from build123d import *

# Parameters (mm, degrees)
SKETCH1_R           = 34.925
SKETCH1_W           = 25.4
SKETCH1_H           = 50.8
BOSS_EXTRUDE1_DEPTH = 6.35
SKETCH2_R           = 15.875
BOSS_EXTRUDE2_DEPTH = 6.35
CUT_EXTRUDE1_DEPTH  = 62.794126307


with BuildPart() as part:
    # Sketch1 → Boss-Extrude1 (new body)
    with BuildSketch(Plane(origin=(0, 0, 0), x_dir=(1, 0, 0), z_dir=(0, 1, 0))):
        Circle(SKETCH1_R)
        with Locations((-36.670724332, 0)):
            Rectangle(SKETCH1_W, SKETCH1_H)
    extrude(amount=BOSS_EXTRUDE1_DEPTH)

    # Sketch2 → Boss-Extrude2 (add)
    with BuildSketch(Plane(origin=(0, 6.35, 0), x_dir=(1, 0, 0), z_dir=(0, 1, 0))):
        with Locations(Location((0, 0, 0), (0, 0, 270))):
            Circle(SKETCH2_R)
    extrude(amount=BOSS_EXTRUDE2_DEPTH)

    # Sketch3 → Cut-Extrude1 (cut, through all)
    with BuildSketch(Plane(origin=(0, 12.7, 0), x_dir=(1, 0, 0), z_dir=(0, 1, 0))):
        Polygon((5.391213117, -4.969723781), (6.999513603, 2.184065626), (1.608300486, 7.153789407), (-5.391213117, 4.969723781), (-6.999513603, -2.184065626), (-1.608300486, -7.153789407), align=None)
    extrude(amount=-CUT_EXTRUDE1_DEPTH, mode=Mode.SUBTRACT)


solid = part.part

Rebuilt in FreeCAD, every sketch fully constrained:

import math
import FreeCAD as App
import Part
import Sketcher

V = App.Vector
Q = App.Units.Quantity

doc = App.newDocument("Part")
body = doc.addObject("PartDesign::Body", "Body")

# Sketch on XZ plane
sketch1 = doc.addObject("Sketcher::SketchObject", "Sketch")
body.addObject(sketch1)
sketch1.AttachmentSupport = (doc.XZ_Plane, [""])
sketch1.MapMode = "FlatFace"
sketch1.addGeometry([
    Part.ArcOfCircle(Part.Circle(V(0, 0, 0), V(0, 0, 1), 34.925), math.radians(-133.341758), math.radians(133.341758)),
    Part.LineSegment(V(-23.970724, -25.4, 0), V(-49.370724, -25.4, 0)),
    Part.LineSegment(V(-49.370724, -25.4, 0), V(-49.370724, 25.4, 0)),
    Part.LineSegment(V(-49.370724, 25.4, 0), V(-23.970724, 25.4, 0)),
], False)
sketch1.addConstraint([
    Sketcher.Constraint("Coincident", 0, 1, 1, 1),
    Sketcher.Constraint("Coincident", 1, 2, 2, 1),
    Sketcher.Constraint("Coincident", 2, 2, 3, 1),
    Sketcher.Constraint("Coincident", 3, 2, 0, 2),
    Sketcher.Constraint("Horizontal", 1),
    Sketcher.Constraint("Vertical", 2),
    Sketcher.Constraint("Horizontal", 3),
    Sketcher.Constraint("Coincident", 0, 3, -1, 1),
    Sketcher.Constraint("Vertical", 0, 1, 3, 2),
    Sketcher.Constraint("DistanceX", 1, 2, 1, 1, Q("1 in")),
    Sketcher.Constraint("DistanceY", 2, 1, 2, 2, Q("2 in")),
    Sketcher.Constraint("Radius", 0, Q("1.375 in")),
])
pad1 = doc.addObject("PartDesign::Pad", "Pad")
body.addObject(pad1)
pad1.Profile = sketch1
pad1.Length = Q("0.25 in")
pad1.Reversed = True

# Sketch on XZ plane
sketch2 = doc.addObject("Sketcher::SketchObject", "Sketch001")
body.addObject(sketch2)
sketch2.AttachmentSupport = (doc.XZ_Plane, [""])
sketch2.MapMode = "FlatFace"
sketch2.AttachmentOffset = App.Placement(V(0, 0, -0.25 * 25.4), App.Rotation())
sketch2.addGeometry(Part.Circle(V(0, 0, 0), V(0, 0, 1), 15.875), False)
sketch2.addConstraint([
    Sketcher.Constraint("Coincident", 0, 3, -1, 1),
    Sketcher.Constraint("Diameter", 0, Q("1.25 in")),
])
pad2 = doc.addObject("PartDesign::Pad", "Pad001")
body.addObject(pad2)
pad2.Profile = sketch2
pad2.Length = Q("0.25 in")
pad2.Reversed = True

# Sketch on XZ plane
sketch3 = doc.addObject("Sketcher::SketchObject", "Sketch002")
body.addObject(sketch3)
sketch3.AttachmentSupport = (doc.XZ_Plane, [""])
sketch3.MapMode = "FlatFace"
sketch3.AttachmentOffset = App.Placement(V(0, 0, -0.5 * 25.4), App.Rotation())
sketch3.addGeometry([
    Part.LineSegment(V(5.391213, 4.969724, 0), V(6.999514, -2.184066, 0)),  # 0
    Part.LineSegment(V(6.999514, -2.184066, 0), V(1.6083, -7.153789, 0)),  # 1
    Part.LineSegment(V(1.6083, -7.153789, 0), V(-5.391213, -4.969724, 0)),  # 2
    Part.LineSegment(V(-5.391213, -4.969724, 0), V(-6.999514, 2.184066, 0)),  # 3
    Part.LineSegment(V(-6.999514, 2.184066, 0), V(-1.6083, 7.153789, 0)),  # 4
    Part.LineSegment(V(-1.6083, 7.153789, 0), V(5.391213, 4.969724, 0)),  # 5
], False)
sketch3.addConstraint([
    Sketcher.Constraint("Coincident", 0, 2, 1, 1),
    Sketcher.Constraint("Coincident", 1, 2, 2, 1),
    Sketcher.Constraint("Coincident", 2, 2, 3, 1),
    Sketcher.Constraint("Coincident", 3, 2, 4, 1),
    Sketcher.Constraint("Coincident", 4, 2, 5, 1),
    Sketcher.Constraint("Coincident", 5, 2, 0, 1),
    Sketcher.Constraint("Symmetric", 0, 2, 3, 2, -1, 1),
    Sketcher.Constraint("Symmetric", 1, 2, 4, 2, -1, 1),
    Sketcher.Constraint("Symmetric", 2, 2, 5, 2, -1, 1),
    Sketcher.Constraint("Equal", 0, 1),
    Sketcher.Constraint("Equal", 1, 2),
    Sketcher.Constraint("DistanceX", -1, 1, 1, 2, Q("1.6083 mm")),
    Sketcher.Constraint("DistanceX", 3, 2, 2, 2, Q("1.6083 mm")),
    Sketcher.Constraint("Distance", 0, Q("7.332348 mm")),
    Sketcher.Constraint("DistanceY", 1, 2, -1, 1, Q("7.153789 mm")),
])
pocket1 = doc.addObject("PartDesign::Pocket", "Pocket")
body.addObject(pocket1)
pocket1.Profile = sketch3
pocket1.Type = "ThroughAll"
pocket1.Reversed = True

doc.recompute()
